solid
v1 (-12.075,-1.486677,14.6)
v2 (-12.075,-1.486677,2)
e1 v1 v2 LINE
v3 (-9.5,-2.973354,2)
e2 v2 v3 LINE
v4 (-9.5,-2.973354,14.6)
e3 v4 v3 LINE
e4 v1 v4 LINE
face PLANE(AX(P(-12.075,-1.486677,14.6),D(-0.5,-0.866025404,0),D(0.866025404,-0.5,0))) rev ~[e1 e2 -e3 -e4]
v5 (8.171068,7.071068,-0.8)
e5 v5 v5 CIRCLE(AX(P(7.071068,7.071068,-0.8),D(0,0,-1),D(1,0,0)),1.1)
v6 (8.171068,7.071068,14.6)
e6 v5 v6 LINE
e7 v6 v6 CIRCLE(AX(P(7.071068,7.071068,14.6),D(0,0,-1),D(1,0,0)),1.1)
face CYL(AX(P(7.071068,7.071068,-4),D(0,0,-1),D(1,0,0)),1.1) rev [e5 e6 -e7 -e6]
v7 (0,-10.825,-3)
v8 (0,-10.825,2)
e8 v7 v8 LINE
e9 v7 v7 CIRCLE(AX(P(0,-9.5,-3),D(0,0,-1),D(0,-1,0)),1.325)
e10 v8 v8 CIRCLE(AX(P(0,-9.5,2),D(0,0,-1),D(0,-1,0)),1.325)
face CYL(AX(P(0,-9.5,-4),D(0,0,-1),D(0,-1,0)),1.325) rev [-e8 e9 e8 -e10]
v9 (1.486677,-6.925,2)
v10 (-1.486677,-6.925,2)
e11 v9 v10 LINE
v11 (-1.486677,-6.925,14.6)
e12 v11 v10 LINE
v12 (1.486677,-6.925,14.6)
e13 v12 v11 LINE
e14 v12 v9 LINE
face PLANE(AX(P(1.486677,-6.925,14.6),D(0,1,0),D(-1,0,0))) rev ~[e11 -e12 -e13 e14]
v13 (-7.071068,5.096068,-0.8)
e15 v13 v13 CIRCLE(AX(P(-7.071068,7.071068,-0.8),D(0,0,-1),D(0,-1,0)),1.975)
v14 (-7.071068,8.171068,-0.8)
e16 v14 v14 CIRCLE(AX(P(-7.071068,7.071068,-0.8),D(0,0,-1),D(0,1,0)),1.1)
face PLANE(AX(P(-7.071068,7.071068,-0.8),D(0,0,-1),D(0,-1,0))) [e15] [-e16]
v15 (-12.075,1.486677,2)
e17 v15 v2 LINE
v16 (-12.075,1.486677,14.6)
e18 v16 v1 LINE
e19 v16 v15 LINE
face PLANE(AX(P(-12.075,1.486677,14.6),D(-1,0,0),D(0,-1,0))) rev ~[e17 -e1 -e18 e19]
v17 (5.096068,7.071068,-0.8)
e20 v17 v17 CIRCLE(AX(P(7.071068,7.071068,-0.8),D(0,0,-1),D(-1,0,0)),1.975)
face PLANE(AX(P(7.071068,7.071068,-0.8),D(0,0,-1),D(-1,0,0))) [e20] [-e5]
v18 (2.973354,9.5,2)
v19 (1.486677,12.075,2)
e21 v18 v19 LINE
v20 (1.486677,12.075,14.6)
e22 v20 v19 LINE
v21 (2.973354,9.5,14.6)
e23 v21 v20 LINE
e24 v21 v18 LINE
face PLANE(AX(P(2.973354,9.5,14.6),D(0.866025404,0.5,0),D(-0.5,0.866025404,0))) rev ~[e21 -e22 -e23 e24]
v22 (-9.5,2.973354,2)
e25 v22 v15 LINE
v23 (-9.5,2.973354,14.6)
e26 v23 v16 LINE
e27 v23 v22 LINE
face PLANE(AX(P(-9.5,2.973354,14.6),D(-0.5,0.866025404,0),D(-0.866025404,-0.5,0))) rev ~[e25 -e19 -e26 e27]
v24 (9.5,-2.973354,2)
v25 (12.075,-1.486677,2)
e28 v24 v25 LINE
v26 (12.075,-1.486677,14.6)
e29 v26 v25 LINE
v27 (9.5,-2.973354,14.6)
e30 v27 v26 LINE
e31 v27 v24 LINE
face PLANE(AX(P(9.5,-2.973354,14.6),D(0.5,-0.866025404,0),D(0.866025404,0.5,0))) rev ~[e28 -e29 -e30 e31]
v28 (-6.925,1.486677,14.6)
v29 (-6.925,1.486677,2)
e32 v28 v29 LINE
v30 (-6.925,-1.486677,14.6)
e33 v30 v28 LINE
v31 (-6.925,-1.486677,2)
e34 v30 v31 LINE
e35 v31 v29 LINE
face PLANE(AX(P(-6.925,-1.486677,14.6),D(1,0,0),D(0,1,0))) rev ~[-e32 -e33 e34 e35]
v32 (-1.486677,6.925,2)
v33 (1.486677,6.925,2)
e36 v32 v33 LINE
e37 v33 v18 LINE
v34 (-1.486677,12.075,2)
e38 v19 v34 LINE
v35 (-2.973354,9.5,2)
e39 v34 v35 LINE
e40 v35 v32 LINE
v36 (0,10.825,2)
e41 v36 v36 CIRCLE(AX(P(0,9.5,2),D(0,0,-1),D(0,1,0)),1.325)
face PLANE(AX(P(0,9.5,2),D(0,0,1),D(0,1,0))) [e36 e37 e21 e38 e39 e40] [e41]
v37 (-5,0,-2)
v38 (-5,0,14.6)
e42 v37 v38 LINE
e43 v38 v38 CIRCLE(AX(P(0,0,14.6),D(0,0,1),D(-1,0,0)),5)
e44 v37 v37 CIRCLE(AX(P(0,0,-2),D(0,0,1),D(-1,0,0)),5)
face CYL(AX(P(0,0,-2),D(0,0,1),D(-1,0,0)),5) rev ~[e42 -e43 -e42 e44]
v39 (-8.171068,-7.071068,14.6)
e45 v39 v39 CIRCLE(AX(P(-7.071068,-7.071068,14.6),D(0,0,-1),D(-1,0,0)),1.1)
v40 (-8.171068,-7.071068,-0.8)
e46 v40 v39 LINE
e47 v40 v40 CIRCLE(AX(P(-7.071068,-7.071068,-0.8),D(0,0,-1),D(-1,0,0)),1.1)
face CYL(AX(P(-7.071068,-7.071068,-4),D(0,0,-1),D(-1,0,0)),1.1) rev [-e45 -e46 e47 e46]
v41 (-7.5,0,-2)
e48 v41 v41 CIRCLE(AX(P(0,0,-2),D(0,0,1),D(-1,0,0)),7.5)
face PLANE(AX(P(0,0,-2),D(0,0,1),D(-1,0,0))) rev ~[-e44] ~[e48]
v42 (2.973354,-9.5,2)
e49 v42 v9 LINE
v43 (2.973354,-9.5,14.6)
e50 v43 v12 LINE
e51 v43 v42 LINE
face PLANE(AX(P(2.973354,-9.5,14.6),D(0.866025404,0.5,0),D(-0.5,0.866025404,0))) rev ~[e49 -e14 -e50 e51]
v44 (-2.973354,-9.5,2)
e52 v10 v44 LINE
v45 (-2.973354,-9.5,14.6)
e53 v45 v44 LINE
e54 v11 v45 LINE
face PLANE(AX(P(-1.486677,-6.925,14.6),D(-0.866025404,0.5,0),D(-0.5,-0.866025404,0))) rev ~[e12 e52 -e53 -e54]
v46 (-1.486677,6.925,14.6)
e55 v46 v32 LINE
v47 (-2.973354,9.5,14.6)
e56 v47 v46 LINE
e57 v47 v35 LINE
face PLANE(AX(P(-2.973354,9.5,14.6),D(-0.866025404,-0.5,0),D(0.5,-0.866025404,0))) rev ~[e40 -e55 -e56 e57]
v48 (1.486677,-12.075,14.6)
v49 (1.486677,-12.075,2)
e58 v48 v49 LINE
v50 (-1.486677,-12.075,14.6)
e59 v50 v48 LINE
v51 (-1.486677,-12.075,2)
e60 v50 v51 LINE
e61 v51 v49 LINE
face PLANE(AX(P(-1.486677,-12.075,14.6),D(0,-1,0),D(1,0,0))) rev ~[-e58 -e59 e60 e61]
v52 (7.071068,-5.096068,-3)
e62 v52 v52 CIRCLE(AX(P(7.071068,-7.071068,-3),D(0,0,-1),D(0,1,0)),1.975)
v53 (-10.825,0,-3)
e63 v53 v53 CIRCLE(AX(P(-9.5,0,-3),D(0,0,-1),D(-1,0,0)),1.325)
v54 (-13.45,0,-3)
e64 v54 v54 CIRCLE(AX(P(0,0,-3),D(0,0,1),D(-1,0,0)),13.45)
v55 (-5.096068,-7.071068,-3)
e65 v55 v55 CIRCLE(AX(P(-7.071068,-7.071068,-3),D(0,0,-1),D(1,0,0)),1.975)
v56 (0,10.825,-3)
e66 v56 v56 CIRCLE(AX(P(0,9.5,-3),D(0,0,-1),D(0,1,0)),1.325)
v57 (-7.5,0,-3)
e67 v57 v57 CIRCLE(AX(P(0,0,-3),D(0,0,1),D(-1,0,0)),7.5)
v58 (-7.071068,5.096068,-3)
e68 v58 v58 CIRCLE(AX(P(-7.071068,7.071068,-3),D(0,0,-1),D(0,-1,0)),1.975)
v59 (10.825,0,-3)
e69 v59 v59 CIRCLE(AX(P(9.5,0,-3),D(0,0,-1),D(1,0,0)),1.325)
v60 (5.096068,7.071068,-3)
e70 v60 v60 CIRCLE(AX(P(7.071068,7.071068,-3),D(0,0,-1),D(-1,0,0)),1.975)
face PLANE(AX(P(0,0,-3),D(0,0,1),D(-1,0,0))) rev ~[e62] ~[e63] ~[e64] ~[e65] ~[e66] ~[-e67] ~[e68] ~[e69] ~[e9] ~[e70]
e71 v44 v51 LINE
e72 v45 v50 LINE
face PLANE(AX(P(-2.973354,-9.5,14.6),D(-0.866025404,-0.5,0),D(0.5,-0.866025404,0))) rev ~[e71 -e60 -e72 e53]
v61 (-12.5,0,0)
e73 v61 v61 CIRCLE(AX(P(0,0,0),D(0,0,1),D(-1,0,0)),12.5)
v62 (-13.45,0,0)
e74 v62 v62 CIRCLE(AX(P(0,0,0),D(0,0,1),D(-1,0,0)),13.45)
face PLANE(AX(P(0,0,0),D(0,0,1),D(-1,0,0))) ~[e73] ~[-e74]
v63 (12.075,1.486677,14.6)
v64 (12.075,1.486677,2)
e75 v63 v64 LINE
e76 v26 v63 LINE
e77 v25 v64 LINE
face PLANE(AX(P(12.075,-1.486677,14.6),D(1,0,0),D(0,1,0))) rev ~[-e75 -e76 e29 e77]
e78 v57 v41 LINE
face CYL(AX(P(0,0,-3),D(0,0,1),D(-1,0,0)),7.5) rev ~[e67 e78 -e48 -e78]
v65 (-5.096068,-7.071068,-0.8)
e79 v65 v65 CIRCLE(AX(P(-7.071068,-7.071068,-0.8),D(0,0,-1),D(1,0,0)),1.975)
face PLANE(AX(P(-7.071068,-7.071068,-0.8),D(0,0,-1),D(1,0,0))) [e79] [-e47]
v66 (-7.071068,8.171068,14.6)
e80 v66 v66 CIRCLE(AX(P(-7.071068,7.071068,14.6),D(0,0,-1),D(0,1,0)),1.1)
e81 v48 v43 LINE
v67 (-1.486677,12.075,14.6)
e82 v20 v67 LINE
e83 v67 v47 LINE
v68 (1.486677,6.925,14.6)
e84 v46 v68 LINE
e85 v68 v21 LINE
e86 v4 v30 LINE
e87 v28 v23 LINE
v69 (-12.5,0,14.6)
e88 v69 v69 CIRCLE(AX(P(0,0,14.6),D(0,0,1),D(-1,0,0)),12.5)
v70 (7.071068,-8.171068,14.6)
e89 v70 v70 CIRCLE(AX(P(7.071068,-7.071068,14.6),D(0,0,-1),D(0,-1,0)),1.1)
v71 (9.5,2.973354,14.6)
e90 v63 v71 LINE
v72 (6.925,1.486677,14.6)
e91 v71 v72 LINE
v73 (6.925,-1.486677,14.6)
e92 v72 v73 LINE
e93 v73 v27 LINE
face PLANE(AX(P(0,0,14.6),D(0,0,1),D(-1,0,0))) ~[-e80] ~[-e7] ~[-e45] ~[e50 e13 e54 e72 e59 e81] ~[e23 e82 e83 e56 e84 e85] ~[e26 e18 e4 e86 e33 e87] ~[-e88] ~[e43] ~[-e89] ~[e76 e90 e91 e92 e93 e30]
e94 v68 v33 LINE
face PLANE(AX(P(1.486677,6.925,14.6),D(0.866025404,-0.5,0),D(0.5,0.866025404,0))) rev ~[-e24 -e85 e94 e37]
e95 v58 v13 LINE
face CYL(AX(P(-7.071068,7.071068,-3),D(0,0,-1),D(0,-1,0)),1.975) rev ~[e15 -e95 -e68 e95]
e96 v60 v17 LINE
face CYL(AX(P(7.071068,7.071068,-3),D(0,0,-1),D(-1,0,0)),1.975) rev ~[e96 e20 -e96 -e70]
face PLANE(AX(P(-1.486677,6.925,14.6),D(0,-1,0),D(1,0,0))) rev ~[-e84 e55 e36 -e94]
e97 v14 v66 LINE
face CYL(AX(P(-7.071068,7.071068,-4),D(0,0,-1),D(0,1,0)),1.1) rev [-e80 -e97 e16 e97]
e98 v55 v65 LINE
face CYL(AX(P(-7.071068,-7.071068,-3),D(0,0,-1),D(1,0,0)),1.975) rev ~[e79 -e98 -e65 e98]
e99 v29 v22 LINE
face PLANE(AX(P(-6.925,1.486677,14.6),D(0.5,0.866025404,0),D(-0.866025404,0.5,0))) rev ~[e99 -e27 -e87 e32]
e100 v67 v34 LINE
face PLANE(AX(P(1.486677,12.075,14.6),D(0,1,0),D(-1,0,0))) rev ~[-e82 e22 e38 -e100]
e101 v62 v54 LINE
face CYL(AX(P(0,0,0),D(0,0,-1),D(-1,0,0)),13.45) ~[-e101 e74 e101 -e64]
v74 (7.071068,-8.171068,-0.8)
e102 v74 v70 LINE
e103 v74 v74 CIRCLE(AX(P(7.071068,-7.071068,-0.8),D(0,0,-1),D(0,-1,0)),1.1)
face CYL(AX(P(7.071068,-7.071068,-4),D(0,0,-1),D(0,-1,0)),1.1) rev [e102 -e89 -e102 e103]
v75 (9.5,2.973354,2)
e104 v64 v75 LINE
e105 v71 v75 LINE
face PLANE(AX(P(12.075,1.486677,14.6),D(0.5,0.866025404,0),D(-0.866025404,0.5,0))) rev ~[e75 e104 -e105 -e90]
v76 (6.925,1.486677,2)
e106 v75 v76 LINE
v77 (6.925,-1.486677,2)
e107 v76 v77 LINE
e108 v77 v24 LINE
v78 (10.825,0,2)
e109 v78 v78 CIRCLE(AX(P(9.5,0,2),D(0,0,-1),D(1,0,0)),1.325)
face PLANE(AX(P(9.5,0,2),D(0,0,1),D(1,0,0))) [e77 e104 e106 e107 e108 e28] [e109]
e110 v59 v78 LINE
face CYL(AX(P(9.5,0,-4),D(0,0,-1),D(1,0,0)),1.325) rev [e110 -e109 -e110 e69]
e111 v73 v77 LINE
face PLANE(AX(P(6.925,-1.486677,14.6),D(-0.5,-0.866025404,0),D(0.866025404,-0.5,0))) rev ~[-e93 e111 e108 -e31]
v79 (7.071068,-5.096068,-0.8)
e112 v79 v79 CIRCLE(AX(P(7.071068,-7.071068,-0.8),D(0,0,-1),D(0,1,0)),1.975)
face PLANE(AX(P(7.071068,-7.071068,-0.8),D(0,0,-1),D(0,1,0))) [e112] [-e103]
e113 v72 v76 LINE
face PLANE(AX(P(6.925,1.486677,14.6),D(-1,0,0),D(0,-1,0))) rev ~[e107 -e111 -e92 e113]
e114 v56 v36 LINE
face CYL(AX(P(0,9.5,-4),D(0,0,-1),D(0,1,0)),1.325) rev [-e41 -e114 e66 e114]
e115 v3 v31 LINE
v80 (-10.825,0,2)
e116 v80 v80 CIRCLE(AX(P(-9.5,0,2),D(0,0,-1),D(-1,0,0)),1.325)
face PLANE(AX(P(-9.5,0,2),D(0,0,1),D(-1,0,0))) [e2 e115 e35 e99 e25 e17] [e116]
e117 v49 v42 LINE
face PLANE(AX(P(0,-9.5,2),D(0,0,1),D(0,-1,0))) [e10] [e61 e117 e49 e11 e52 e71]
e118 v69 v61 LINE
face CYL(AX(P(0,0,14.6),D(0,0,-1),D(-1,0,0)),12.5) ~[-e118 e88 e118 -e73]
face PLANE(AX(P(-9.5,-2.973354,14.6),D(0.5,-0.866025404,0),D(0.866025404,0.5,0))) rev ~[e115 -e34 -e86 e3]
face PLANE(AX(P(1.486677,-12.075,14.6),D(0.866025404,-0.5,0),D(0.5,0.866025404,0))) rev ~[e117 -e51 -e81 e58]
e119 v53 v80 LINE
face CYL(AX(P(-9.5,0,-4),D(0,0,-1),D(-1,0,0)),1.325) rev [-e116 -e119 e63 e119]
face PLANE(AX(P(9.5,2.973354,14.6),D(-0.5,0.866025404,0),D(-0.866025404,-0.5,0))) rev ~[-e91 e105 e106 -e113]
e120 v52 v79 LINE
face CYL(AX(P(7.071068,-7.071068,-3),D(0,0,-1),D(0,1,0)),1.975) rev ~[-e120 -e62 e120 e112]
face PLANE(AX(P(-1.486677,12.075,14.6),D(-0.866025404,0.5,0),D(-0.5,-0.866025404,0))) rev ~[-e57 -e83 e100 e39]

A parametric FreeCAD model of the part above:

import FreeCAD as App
import Part
import Sketcher

V = App.Vector
Q = App.Units.Quantity

doc = App.newDocument("Part")
body = doc.addObject("PartDesign::Body", "Body")

# Sketch on XZ plane
sketch1 = body.newObject("Sketcher::SketchObject", "Sketch")
sketch1.AttachmentSupport = (doc.getObject("XZ_Plane"), [""])
sketch1.MapMode = "FlatFace"
sketch1.addGeometry([
    Part.LineSegment(V(-7.5, -3, 0), V(-13.4, -3, 0)),  # 0
    Part.LineSegment(V(-13.4, -3, 0), V(-13.4, 0, 0)),  # 1
    Part.LineSegment(V(-13.4, 0, 0), V(-12.5, 0, 0)),  # 2
    Part.LineSegment(V(-12.5, 0, 0), V(-12.5, 14.6, 0)),  # 3
    Part.LineSegment(V(-12.5, 14.6, 0), V(-5, 14.6, 0)),  # 4
    Part.LineSegment(V(-5, 14.6, 0), V(-5, -2, 0)),  # 5
    Part.LineSegment(V(-5, -2, 0), V(-7.5, -2, 0)),  # 6
    Part.LineSegment(V(-7.5, -2, 0), V(-7.5, -3, 0)),  # 7
], False)
sketch1.addConstraint([
    Sketcher.Constraint("Coincident", 0, 2, 1, 1),
    Sketcher.Constraint("Coincident", 1, 2, 2, 1),
    Sketcher.Constraint("Coincident", 2, 2, 3, 1),
    Sketcher.Constraint("Coincident", 3, 2, 4, 1),
    Sketcher.Constraint("Coincident", 4, 2, 5, 1),
    Sketcher.Constraint("Coincident", 5, 2, 6, 1),
    Sketcher.Constraint("Coincident", 6, 2, 7, 1),
    Sketcher.Constraint("Coincident", 7, 2, 0, 1),
    Sketcher.Constraint("Horizontal", 0),
    Sketcher.Constraint("Vertical", 1),
    Sketcher.Constraint("Horizontal", 2),
    Sketcher.Constraint("Vertical", 3),
    Sketcher.Constraint("Horizontal", 4),
    Sketcher.Constraint("Vertical", 5),
    Sketcher.Constraint("Horizontal", 6),
    Sketcher.Constraint("Vertical", 7),
    Sketcher.Constraint("PointOnObject", 1, 2, -1),
    Sketcher.Constraint("DistanceY", 1, 1, 1, 2, 3.0),
    Sketcher.Constraint("DistanceY", 7, 2, 7, 1, 1.0),
    Sketcher.Constraint("DistanceX", 4, 1, 4, 2, 7.5),
    Sketcher.Constraint("DistanceX", 6, 2, 6, 1, 2.5),
    Sketcher.Constraint("DistanceY", 3, 1, 3, 2, 14.6),
    Sketcher.Constraint("DistanceX", 4, 2, -1, 1, 5.0),
    Sketcher.Constraint("DistanceX", 0, 2, 0, 1, 5.95),
])
revolution = body.newObject("PartDesign::Revolution", "Revolution")
revolution.Profile = sketch1
revolution.ReferenceAxis = (sketch1, ["V_Axis"])
revolution.Angle = 360

# Sketch on XY plane
sketch2 = body.newObject("Sketcher::SketchObject", "Sketch001")
sketch2.AttachmentSupport = (doc.getObject("XY_Plane"), [""])
sketch2.MapMode = "FlatFace"
sketch2.AttachmentOffset = App.Placement(V(0, 0, -4), App.Rotation())
sketch2.addGeometry(Part.Circle(V(9.5, 0, 0), V(0, 0, 1), 1.3), False)
sketch2.addConstraint([
    Sketcher.Constraint("PointOnObject", 0, 3, -1),
    Sketcher.Constraint("Diameter", 0, 2.65),
    Sketcher.Constraint("DistanceX", -1, 1, 0, 3, 9.5),
])
pocket1 = body.newObject("PartDesign::Pocket", "Pocket")
pocket1.Profile = sketch2
pocket1.Length = 19.6
pocket1.Reversed = True

# Sketch on XY plane
sketch3 = body.newObject("Sketcher::SketchObject", "Sketch002")
sketch3.AttachmentSupport = (doc.getObject("XY_Plane"), [""])
sketch3.MapMode = "FlatFace"
sketch3.AttachmentOffset = App.Placement(V(0, 0, -3), App.Rotation())
sketch3.addGeometry(Part.Circle(V(7.1, 7.1, 0), V(0, 0, 1), 2), False)
sketch3.addConstraint([
    Sketcher.Constraint("Diameter", 0, 3.95),
    Sketcher.Constraint("DistanceX", -1, 1, 0, 3, 7.071068),
    Sketcher.Constraint("DistanceY", -1, 1, 0, 3, 7.071068),
])
pocket2 = body.newObject("PartDesign::Pocket", "Pocket001")
pocket2.Profile = sketch3
pocket2.Length = 2.2
pocket2.Reversed = True

# Sketch on XY plane
sketch4 = body.newObject("Sketcher::SketchObject", "Sketch003")
sketch4.AttachmentSupport = (doc.getObject("XY_Plane"), [""])
sketch4.MapMode = "FlatFace"
sketch4.AttachmentOffset = App.Placement(V(0, 0, -4), App.Rotation())
sketch4.addGeometry(Part.Circle(V(7.1, 7.1, 0), V(0, 0, 1), 1.1), False)
sketch4.addConstraint([
    Sketcher.Constraint("Diameter", 0, 2.2),
    Sketcher.Constraint("DistanceX", -1, 1, 0, 3, 7.071068),
    Sketcher.Constraint("DistanceY", -1, 1, 0, 3, 7.071068),
])
pocket3 = body.newObject("PartDesign::Pocket", "Pocket002")
pocket3.Profile = sketch4
pocket3.Length = 19.6
pocket3.Reversed = True

# Sketch on XY plane
sketch5 = body.newObject("Sketcher::SketchObject", "Sketch004")
sketch5.AttachmentSupport = (doc.getObject("XY_Plane"), [""])
sketch5.MapMode = "FlatFace"
sketch5.AttachmentOffset = App.Placement(V(0, 0, 14.6), App.Rotation())
sketch5.addGeometry([
    Part.LineSegment(V(12.1, -1.5, 0), V(12.1, 1.5, 0)),  # 0
    Part.LineSegment(V(12.1, 1.5, 0), V(9.5, 3, 0)),  # 1
    Part.LineSegment(V(9.5, 3, 0), V(6.9, 1.5, 0)),  # 2
    Part.LineSegment(V(6.9, 1.5, 0), V(6.9, -1.5, 0)),  # 3
    Part.LineSegment(V(6.9, -1.5, 0), V(9.5, -3, 0)),  # 4
    Part.LineSegment(V(9.5, -3, 0), V(12.1, -1.5, 0)),  # 5
], False)
sketch5.addConstraint([
    Sketcher.Constraint("Coincident", 0, 2, 1, 1),
    Sketcher.Constraint("Coincident", 1, 2, 2, 1),
    Sketcher.Constraint("Coincident", 2, 2, 3, 1),
    Sketcher.Constraint("Coincident", 3, 2, 4, 1),
    Sketcher.Constraint("Coincident", 4, 2, 5, 1),
    Sketcher.Constraint("Coincident", 5, 2, 0, 1),
    Sketcher.Constraint("Vertical", 0),
    Sketcher.Constraint("Vertical", 3),
    Sketcher.Constraint("Symmetric", 1, 2, 4, 2, -1),
    Sketcher.Constraint("Parallel", 1, 4),
    Sketcher.Constraint("Parallel", 2, 5),
    Sketcher.Constraint("Horizontal", 0, 2, 2, 2),
    Sketcher.Constraint("Horizontal", 3, 2, 5, 2),
    Sketcher.Constraint("Angle", 1, Q("150 deg")),
    Sketcher.Constraint("DistanceX", -1, 1, 1, 2, 9.5),
    Sketcher.Constraint("DistanceX", 2, 2, 0, 2, 5.15),
    Sketcher.Constraint("DistanceY", 0, 1, 0, 2, 2.973354),
])
pocket4 = body.newObject("PartDesign::Pocket", "Pocket003")
pocket4.Profile = sketch5
pocket4.Length = 12.6
doc.recompute()

polarpattern = body.newObject("PartDesign::PolarPattern", "PolarPattern")
polarpattern.Originals = [pocket1, pocket2, pocket3, pocket4]
polarpattern.Axis = (doc.getObject("Z_Axis"), [""])
polarpattern.Angle = 360
polarpattern.Occurrences = 4
body.Tip = polarpattern

doc.recompute()
